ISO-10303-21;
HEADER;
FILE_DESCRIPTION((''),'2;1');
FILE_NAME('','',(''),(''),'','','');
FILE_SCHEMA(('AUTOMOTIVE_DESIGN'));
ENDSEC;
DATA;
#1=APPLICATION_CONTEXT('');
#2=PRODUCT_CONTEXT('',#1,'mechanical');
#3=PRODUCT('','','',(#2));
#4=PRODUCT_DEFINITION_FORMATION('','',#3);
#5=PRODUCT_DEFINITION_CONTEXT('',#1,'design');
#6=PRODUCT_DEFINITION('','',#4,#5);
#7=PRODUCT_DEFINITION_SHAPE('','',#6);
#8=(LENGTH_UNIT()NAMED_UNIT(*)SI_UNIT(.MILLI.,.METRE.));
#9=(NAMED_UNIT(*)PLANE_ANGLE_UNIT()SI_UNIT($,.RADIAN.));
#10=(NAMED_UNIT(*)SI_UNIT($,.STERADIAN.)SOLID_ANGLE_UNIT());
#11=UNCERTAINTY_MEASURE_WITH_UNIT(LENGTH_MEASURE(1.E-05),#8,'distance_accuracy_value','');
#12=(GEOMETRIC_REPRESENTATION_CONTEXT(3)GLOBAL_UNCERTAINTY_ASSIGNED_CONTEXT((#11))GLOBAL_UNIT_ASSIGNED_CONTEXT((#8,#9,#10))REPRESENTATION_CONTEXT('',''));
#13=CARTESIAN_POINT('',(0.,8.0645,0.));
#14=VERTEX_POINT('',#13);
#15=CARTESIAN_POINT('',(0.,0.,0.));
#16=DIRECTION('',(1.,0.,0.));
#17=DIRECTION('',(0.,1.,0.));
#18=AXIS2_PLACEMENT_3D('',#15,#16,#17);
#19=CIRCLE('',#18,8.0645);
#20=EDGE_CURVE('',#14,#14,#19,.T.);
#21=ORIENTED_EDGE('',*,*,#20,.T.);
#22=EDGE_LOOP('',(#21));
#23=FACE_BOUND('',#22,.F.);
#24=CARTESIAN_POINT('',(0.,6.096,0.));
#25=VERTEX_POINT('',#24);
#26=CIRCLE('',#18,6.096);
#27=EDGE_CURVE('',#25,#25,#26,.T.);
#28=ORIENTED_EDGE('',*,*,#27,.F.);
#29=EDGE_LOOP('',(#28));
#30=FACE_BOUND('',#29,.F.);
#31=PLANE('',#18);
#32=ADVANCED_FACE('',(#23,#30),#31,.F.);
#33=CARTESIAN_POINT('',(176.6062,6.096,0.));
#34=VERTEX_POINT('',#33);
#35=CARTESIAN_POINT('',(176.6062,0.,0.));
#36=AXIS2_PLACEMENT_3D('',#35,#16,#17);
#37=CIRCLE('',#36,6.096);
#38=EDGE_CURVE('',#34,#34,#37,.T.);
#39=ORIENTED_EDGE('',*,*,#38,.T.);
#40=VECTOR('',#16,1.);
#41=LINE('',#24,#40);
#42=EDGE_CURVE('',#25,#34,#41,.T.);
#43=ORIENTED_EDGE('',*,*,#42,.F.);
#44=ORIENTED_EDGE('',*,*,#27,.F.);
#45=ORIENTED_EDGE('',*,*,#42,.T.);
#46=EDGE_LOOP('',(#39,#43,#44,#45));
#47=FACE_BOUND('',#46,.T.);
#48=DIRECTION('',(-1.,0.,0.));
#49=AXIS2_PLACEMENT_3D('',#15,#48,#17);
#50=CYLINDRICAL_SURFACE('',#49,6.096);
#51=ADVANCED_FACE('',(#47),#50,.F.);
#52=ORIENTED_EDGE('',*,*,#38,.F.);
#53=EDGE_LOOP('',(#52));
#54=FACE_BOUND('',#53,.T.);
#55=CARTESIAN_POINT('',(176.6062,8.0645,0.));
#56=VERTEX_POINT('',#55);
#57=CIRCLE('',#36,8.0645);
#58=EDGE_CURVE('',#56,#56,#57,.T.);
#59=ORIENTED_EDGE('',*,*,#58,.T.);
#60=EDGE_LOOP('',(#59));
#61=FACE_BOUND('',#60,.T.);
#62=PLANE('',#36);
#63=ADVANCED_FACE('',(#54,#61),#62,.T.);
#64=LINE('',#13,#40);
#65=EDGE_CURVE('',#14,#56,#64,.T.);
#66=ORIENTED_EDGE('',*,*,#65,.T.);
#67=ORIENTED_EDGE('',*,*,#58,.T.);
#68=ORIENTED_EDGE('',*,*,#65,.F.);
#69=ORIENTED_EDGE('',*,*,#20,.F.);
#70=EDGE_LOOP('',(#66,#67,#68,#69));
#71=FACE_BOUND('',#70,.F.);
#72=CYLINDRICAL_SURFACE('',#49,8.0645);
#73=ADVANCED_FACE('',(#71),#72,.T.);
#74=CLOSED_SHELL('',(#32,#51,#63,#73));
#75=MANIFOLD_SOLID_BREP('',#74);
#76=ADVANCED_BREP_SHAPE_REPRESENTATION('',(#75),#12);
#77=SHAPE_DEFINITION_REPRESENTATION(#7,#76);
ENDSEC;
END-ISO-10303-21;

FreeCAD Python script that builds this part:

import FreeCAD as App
import Part
import Sketcher
Q = App.Units.Quantity

doc = App.newDocument("Part")
body = doc.addObject("PartDesign::Body", "Body")

# Sketch on YZ plane
sketch1 = body.newObject("Sketcher::SketchObject", "Sketch")
sketch1.AttachmentSupport = (doc.getObject("YZ_Plane"), [""])
sketch1.MapMode = "FlatFace"
sketch1.addGeometry([
    Part.Circle(App.Vector(0, 0, 0), App.Vector(0, 0, 1), 8.0645),
    Part.Circle(App.Vector(0, 0, 0), App.Vector(0, 0, 1), 6.096),
], False)
sketch1.addConstraint([
    Sketcher.Constraint("Coincident", 0, 3, -1, 1),
    Sketcher.Constraint("Coincident", 1, 3, -1, 1),
    Sketcher.Constraint("Diameter", 1, Q("0.48 in")),
    Sketcher.Constraint("Diameter", 0, Q("0.635 in")),
])
pad1 = body.newObject("PartDesign::Pad", "Pad")
pad1.Profile = sketch1
pad1.Length = Q("6.953 in")

doc.recompute()
